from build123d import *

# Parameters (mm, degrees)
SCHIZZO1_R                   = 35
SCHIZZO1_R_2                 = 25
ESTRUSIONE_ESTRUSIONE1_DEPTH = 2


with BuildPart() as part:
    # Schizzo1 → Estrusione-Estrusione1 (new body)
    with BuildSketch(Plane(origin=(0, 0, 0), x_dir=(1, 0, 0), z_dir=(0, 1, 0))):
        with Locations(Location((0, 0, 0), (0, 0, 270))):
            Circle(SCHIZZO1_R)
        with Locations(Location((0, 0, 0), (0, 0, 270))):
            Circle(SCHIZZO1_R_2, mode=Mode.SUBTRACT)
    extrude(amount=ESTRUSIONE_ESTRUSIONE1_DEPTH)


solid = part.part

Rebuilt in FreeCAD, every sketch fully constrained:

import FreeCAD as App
import Part
import Sketcher

V = App.Vector
Q = App.Units.Quantity

doc = App.newDocument("Part")
params = doc.addObject("Spreadsheet::Sheet", "Params")
for row, (alias, value) in enumerate([
    ("sketch1_diameter", "70 mm"),
    ("sketch1_diameter2", "50 mm"),
    ("pad1_length", "2 mm"),
], start=1):
    params.set(f"A{row}", alias)
    params.set(f"B{row}", "=" + value)
    params.setAlias(f"B{row}", alias)

body = doc.addObject("PartDesign::Body", "Body")

# Sketch on XZ plane
sketch1 = doc.addObject("Sketcher::SketchObject", "Sketch")
body.addObject(sketch1)
sketch1.AttachmentSupport = (doc.XZ_Plane, [""])
sketch1.MapMode = "FlatFace"
sketch1.addGeometry(Part.Circle(V(0, 0, 0), V(0, 0, 1), 35), False)
sketch1.addGeometry(Part.Circle(V(0, 0, 0), V(0, 0, 1), 25), False)
sketch1.addConstraint(Sketcher.Constraint("Coincident", 0, 3, -1, 1))
sketch1.addConstraint(Sketcher.Constraint("Coincident", 1, 3, -1, 1))
sketch1.addConstraint(Sketcher.Constraint("Diameter", 0, Q("70 mm")))
sketch1.addConstraint(Sketcher.Constraint("Diameter", 1, Q("50 mm")))
sketch1.setExpression("Constraints[2]", "Params.sketch1_diameter")
sketch1.setExpression("Constraints[3]", "Params.sketch1_diameter2")
pad1 = doc.addObject("PartDesign::Pad", "Pad")
body.addObject(pad1)
pad1.Profile = sketch1
pad1.setExpression("Length", "Params.pad1_length")
pad1.Reversed = True

doc.recompute()
